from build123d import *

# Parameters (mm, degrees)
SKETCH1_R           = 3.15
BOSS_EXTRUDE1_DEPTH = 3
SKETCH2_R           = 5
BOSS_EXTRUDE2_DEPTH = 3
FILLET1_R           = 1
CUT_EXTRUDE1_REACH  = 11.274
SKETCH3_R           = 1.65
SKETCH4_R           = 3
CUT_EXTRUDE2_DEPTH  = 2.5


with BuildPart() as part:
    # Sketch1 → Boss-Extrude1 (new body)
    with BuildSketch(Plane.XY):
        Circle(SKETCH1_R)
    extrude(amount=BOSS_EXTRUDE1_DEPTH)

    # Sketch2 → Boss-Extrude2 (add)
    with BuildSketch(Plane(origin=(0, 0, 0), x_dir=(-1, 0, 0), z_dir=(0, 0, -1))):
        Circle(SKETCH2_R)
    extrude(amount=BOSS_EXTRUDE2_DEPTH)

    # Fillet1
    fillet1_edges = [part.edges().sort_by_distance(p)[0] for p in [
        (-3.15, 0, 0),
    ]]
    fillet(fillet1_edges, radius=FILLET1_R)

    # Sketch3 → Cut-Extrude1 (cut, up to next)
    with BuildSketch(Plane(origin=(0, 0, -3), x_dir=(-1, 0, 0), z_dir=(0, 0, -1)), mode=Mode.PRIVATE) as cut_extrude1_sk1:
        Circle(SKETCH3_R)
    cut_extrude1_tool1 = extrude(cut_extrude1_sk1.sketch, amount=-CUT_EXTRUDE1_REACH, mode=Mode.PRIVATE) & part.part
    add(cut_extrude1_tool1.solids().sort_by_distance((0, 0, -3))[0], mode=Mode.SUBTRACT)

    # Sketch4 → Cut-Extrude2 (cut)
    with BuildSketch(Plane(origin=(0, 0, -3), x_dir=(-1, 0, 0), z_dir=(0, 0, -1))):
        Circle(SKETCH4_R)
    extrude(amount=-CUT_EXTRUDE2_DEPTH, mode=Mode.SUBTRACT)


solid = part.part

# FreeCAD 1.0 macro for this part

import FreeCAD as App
import Part
import Sketcher

V = App.Vector
Q = App.Units.Quantity


def edges_at(feature, points):
    """Names of the edges that pass closest to the given points."""
    edges = feature.Shape.Edges
    near = lambda p: min(range(len(edges)), key=lambda i: edges[i].distToShape(Part.Vertex(*p))[0])
    return sorted({f"Edge{near(p) + 1}" for p in points})

doc = App.newDocument("Part")
body = doc.addObject("PartDesign::Body", "Body")

sketch1 = body.newObject("Sketcher::SketchObject", "Sketch")
sketch1.AttachmentSupport = (doc.getObject("XY_Plane"), [""])
sketch1.MapMode = "FlatFace"
sketch1.addGeometry(Part.Circle(V(0, 0, 0), V(0, 0, 1), 3.1), False)
sketch1.addConstraint([
    Sketcher.Constraint("Coincident", 0, 3, -1, 1),
    Sketcher.Constraint("Diameter", 0, Q("6.3 mm")),
])
pad1 = body.newObject("PartDesign::Pad", "Pad")
pad1.Profile = sketch1
pad1.Length = 3

sketch2 = body.newObject("Sketcher::SketchObject", "Sketch001")
sketch2.AttachmentSupport = (doc.getObject("XY_Plane"), [""])
sketch2.MapMode = "FlatFace"
sketch2.addGeometry(Part.Circle(V(0, 0, 0), V(0, 0, 1), 5), False)
sketch2.addConstraint([
    Sketcher.Constraint("Coincident", 0, 3, -1, 1),
    Sketcher.Constraint("Diameter", 0, Q("10 mm")),
])
pad2 = body.newObject("PartDesign::Pad", "Pad001")
pad2.Profile = sketch2
pad2.Length = 3
pad2.Reversed = True
doc.recompute()

fillet = body.newObject("PartDesign::Fillet", "Fillet")
fillet.Base = (pad2, edges_at(pad2, [(-3.15, 0, 0)]))
fillet.Radius = 1

sketch3 = body.newObject("Sketcher::SketchObject", "Sketch002")
sketch3.AttachmentSupport = (doc.getObject("XY_Plane"), [""])
sketch3.MapMode = "FlatFace"
sketch3.AttachmentOffset = App.Placement(V(0, 0, -3), App.Rotation())
sketch3.addGeometry(Part.Circle(V(0, 0, 0), V(0, 0, 1), 1.6), False)
sketch3.addConstraint([
    Sketcher.Constraint("Coincident", 0, 3, -1, 1),
    Sketcher.Constraint("Diameter", 0, Q("3.3 mm")),
])
pocket1 = body.newObject("PartDesign::Pocket", "Pocket")
pocket1.Profile = sketch3
pocket1.Type = "UpToFirst"
pocket1.Reversed = True

sketch4 = body.newObject("Sketcher::SketchObject", "Sketch003")
sketch4.AttachmentSupport = (doc.getObject("XY_Plane"), [""])
sketch4.MapMode = "FlatFace"
sketch4.AttachmentOffset = App.Placement(V(0, 0, -3), App.Rotation())
sketch4.addGeometry(Part.Circle(V(0, 0, 0), V(0, 0, 1), 3), False)
sketch4.addConstraint([
    Sketcher.Constraint("Coincident", 0, 3, -1, 1),
    Sketcher.Constraint("Diameter", 0, Q("6 mm")),
])
pocket2 = body.newObject("PartDesign::Pocket", "Pocket001")
pocket2.Profile = sketch4
pocket2.Length = 2.5
pocket2.Reversed = True

doc.recompute()
